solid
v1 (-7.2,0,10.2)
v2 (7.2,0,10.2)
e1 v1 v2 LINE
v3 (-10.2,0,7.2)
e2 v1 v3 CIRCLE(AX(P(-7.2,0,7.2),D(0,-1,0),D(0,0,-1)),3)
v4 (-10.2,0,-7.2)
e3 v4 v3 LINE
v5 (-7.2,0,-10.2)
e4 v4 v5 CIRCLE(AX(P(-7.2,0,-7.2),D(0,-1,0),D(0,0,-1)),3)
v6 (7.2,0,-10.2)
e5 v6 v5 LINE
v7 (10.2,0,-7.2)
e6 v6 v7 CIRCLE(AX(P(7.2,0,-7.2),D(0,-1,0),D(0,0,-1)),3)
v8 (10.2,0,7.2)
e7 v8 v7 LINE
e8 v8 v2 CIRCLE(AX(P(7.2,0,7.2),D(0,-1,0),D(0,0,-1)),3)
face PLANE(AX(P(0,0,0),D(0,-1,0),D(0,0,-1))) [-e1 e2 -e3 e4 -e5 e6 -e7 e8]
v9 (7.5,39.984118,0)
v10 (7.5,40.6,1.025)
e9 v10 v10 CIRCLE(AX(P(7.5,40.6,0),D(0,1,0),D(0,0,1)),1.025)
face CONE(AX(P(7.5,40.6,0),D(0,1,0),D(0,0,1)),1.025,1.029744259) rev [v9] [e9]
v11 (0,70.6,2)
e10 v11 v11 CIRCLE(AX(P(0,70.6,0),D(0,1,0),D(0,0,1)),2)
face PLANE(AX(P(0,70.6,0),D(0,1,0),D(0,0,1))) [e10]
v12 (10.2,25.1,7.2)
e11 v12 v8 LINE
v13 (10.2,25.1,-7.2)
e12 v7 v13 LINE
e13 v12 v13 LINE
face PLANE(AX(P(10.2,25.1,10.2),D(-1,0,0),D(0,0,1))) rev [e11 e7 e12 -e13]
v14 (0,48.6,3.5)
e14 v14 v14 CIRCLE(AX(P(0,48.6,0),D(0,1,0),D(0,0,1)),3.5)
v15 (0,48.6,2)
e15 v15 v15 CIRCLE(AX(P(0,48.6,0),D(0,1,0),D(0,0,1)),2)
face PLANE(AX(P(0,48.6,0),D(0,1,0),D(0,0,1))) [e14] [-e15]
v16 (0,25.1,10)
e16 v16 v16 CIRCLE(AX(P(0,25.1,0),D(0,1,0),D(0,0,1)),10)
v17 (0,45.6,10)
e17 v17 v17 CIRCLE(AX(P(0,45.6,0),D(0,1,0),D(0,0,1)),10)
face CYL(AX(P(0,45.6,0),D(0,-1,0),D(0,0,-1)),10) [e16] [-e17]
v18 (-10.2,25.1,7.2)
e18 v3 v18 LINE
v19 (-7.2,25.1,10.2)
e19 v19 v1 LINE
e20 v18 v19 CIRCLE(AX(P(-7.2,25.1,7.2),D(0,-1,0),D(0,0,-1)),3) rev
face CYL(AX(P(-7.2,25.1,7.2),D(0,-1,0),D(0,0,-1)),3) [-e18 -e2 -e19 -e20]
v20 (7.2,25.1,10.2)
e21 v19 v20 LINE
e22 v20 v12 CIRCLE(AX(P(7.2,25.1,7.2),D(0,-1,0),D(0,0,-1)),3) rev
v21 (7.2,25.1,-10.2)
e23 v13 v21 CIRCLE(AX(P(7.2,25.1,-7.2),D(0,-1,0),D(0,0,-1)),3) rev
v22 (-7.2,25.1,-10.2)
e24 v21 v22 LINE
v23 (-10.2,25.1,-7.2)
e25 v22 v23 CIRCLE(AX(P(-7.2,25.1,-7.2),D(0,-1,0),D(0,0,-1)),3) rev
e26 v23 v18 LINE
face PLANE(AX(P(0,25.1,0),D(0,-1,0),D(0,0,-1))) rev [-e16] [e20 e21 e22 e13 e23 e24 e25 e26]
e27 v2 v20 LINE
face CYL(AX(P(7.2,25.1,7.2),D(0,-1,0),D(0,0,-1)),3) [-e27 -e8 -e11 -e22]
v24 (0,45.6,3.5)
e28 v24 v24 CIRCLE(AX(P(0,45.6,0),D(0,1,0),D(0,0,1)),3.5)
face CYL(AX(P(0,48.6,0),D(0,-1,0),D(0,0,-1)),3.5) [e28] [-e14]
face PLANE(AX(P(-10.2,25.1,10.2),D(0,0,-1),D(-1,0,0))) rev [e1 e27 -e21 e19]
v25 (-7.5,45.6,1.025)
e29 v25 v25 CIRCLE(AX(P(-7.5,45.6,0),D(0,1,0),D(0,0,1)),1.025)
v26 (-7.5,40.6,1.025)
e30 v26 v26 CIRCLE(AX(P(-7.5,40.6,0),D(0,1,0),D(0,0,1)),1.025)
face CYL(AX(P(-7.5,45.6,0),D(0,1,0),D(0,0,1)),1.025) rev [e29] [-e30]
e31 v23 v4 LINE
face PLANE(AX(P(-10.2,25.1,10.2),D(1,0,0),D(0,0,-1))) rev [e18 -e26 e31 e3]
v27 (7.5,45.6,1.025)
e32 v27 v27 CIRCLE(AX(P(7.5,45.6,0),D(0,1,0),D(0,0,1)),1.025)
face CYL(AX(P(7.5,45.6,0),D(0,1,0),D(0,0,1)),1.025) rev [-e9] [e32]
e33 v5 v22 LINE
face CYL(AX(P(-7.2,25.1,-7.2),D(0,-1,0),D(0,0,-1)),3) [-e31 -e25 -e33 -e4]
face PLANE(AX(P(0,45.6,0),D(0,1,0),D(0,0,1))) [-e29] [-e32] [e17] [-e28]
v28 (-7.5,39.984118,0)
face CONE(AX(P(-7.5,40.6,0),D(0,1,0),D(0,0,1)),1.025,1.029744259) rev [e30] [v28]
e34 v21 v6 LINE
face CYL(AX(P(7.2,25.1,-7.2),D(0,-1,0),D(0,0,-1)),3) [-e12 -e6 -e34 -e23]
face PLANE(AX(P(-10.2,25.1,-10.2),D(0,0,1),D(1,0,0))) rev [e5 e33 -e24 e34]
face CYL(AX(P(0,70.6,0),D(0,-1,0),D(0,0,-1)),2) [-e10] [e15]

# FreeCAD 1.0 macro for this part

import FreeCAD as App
import Part
import Sketcher
from FreeCAD import Vector
Q = App.Units.Quantity


def edges_at(feature, points):
    """Names of the edges that pass closest to the given points."""
    edges = feature.Shape.Edges
    near = lambda p: min(range(len(edges)), key=lambda i: edges[i].distToShape(Part.Vertex(*p))[0])
    return sorted({f"Edge{near(p) + 1}" for p in points})

doc = App.newDocument("Part")
body = doc.addObject("PartDesign::Body", "Body")

# Sketch on XZ plane
sketch1 = body.newObject("Sketcher::SketchObject", "Sketch")
sketch1.AttachmentSupport = (doc.getObject("XZ_Plane"), [""])
sketch1.MapMode = "FlatFace"
sketch1.addGeometry([
    Part.LineSegment(Vector(-10, -10, 0), Vector(-10, 10, 0)),
    Part.LineSegment(Vector(-10, 10, 0), Vector(10, 10, 0)),
    Part.LineSegment(Vector(10, 10, 0), Vector(10, -10, 0)),
    Part.LineSegment(Vector(10, -10, 0), Vector(-10, -10, 0)),
], False)
sketch1.addConstraint([
    Sketcher.Constraint("Coincident", 0, 2, 1, 1),
    Sketcher.Constraint("Coincident", 1, 2, 2, 1),
    Sketcher.Constraint("Coincident", 2, 2, 3, 1),
    Sketcher.Constraint("Coincident", 3, 2, 0, 1),
    Sketcher.Constraint("Vertical", 0),
    Sketcher.Constraint("Horizontal", 1),
    Sketcher.Constraint("Vertical", 2),
    Sketcher.Constraint("Horizontal", 3),
    Sketcher.Constraint("Symmetric", 0, 2, 2, 2, -1, 1),
    Sketcher.Constraint("Equal", 3, 0),
    Sketcher.Constraint("DistanceX", 1, 1, 1, 2, Q("20.4 mm")),
])
pad1 = body.newObject("PartDesign::Pad", "Pad")
pad1.Profile = sketch1
pad1.Length = 25.1
pad1.Reversed = True

# Sketch on XZ plane
sketch2 = body.newObject("Sketcher::SketchObject", "Sketch001")
sketch2.AttachmentSupport = (doc.getObject("XZ_Plane"), [""])
sketch2.MapMode = "FlatFace"
sketch2.AttachmentOffset = App.Placement(Vector(0, 0, -25.1), App.Rotation())
sketch2.addGeometry(Part.Circle(Vector(0, 0, 0), Vector(0, 0, 1), 10), False)
sketch2.addConstraint([
    Sketcher.Constraint("Coincident", 0, 3, -1, 1),
    Sketcher.Constraint("Diameter", 0, Q("20 mm")),
])
pad2 = body.newObject("PartDesign::Pad", "Pad001")
pad2.Profile = sketch2
pad2.Length = 20.5
pad2.Reversed = True

# Sketch on XZ plane
sketch3 = body.newObject("Sketcher::SketchObject", "Sketch002")
sketch3.AttachmentSupport = (doc.getObject("XZ_Plane"), [""])
sketch3.MapMode = "FlatFace"
sketch3.AttachmentOffset = App.Placement(Vector(0, 0, -45.6), App.Rotation())
sketch3.addGeometry(Part.Circle(Vector(0, 0, 0), Vector(0, 0, 1), 3.5), False)
sketch3.addConstraint([
    Sketcher.Constraint("Coincident", 0, 3, -1, 1),
    Sketcher.Constraint("Diameter", 0, Q("7 mm")),
])
pad3 = body.newObject("PartDesign::Pad", "Pad002")
pad3.Profile = sketch3
pad3.Length = 3
pad3.Reversed = True

# Sketch on XZ plane
sketch4 = body.newObject("Sketcher::SketchObject", "Sketch003")
sketch4.AttachmentSupport = (doc.getObject("XZ_Plane"), [""])
sketch4.MapMode = "FlatFace"
sketch4.AttachmentOffset = App.Placement(Vector(0, 0, -48.6), App.Rotation())
sketch4.addGeometry(Part.Circle(Vector(0, 0, 0), Vector(0, 0, 1), 2), False)
sketch4.addConstraint([
    Sketcher.Constraint("Coincident", 0, 3, -1, 1),
    Sketcher.Constraint("Diameter", 0, Q("4 mm")),
])
pad4 = body.newObject("PartDesign::Pad", "Pad003")
pad4.Profile = sketch4
pad4.Length = 22
pad4.Reversed = True

# Sketch on XZ plane
sketch5 = body.newObject("Sketcher::SketchObject", "Sketch004")
sketch5.AttachmentSupport = (doc.getObject("XZ_Plane"), [""])
sketch5.MapMode = "FlatFace"
sketch5.AttachmentOffset = App.Placement(Vector(0, 0, -45.6), App.Rotation())
sketch5.addGeometry([
    Part.Circle(Vector(-7.5, 0, 0), Vector(0, 0, 1), 1),
    Part.Circle(Vector(7.5, 0, 0), Vector(0, 0, 1), 1),
], False)
sketch5.addConstraint([
    Sketcher.Constraint("Equal", 0, 1),
    Sketcher.Constraint("Symmetric", 0, 3, 1, 3, -1, 1),
    Sketcher.Constraint("PointOnObject", 0, 3, -1),
    Sketcher.Constraint("Diameter", 0, Q("2.05 mm")),
    Sketcher.Constraint("DistanceX", 0, 3, 1, 3, Q("15 mm")),
])
doc.recompute()
hole = body.newObject("PartDesign::Hole", "Hole")
hole.Profile = sketch5
hole.ThreadType = "None"
hole.Diameter = 2.05
hole.DepthType = "Dimension"
hole.Depth = 5
hole.DrillPoint = "Angled"
hole.DrillPointAngle = 118
hole.Reversed = True
doc.recompute()

fillet = body.newObject("PartDesign::Fillet", "Fillet")
fillet.Base = (hole, edges_at(hole, [
    (10.2, 12.55, 10.2),
    (-10.2, 12.55, 10.2),
    (-10.2, 12.55, -10.2),
    (10.2, 12.55, -10.2),
]))
fillet.Radius = 3

doc.recompute()
